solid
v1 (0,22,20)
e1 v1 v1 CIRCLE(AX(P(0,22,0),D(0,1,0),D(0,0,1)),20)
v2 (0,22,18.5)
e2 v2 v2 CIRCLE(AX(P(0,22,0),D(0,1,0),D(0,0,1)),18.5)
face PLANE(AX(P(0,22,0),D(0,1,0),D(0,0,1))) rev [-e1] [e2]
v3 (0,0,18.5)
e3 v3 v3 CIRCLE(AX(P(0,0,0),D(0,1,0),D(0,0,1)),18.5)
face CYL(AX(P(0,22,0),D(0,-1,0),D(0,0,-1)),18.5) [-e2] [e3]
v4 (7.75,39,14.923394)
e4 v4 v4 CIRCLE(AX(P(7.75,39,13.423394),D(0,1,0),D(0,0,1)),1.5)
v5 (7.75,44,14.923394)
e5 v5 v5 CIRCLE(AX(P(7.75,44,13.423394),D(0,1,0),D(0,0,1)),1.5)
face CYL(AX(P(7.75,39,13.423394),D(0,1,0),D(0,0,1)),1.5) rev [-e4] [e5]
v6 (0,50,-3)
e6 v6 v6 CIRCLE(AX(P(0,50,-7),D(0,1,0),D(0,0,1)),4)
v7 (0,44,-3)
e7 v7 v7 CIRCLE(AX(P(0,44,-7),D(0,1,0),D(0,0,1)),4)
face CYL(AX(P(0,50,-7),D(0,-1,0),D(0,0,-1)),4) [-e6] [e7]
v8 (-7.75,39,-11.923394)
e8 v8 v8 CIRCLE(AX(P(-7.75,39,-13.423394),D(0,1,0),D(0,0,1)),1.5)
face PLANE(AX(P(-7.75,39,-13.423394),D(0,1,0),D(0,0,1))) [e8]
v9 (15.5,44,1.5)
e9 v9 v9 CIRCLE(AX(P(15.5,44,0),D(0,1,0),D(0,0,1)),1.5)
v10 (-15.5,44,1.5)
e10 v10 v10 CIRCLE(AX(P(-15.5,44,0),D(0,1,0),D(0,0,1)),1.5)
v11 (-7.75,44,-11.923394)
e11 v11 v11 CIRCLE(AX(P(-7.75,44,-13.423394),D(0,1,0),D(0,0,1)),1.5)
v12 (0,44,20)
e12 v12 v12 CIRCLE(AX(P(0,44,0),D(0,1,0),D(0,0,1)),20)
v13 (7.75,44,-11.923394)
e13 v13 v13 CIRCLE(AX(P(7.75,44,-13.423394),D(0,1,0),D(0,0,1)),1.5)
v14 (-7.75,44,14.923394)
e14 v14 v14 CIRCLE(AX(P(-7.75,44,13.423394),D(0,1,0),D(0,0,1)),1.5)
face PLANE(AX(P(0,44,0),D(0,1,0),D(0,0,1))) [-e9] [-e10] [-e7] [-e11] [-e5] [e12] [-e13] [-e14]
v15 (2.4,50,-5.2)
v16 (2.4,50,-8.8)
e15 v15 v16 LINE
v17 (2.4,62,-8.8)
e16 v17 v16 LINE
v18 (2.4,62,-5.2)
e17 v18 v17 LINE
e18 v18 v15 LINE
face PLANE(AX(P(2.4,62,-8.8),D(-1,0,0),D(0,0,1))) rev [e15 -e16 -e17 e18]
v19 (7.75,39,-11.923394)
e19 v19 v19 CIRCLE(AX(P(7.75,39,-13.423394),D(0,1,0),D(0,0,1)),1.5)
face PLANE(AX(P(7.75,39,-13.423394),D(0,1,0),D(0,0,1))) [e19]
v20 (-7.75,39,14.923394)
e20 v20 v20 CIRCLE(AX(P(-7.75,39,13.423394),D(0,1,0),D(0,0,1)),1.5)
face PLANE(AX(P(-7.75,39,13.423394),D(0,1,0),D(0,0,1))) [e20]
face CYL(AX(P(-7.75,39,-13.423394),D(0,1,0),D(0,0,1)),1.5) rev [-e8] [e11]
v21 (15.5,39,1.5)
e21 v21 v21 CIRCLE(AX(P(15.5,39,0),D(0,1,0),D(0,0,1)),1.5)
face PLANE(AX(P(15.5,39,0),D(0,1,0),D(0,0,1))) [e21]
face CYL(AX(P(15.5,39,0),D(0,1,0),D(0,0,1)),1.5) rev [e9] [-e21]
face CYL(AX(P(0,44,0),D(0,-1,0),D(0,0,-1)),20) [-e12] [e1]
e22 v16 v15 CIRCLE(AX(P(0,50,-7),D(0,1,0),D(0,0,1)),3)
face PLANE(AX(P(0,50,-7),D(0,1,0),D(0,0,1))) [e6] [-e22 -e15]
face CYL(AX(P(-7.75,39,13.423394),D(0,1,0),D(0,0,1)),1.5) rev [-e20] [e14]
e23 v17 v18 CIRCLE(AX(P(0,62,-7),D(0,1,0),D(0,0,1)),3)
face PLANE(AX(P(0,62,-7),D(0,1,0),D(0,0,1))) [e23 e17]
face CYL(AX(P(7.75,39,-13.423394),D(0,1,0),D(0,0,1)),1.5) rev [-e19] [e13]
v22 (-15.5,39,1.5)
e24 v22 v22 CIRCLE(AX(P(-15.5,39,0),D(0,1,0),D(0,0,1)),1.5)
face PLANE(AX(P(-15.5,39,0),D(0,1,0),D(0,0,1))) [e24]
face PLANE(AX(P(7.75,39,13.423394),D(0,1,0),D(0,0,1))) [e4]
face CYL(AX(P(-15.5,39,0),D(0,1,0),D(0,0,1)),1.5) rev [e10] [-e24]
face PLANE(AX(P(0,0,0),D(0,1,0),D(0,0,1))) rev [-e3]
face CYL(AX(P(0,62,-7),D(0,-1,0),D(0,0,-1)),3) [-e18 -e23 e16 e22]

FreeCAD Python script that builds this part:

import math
import FreeCAD as App
import Part
import Sketcher

doc = App.newDocument("Part")
body = doc.addObject("PartDesign::Body", "Body")

# Sketch on XZ plane
sketch1 = body.newObject("Sketcher::SketchObject", "Sketch")
sketch1.AttachmentSupport = (doc.getObject("XZ_Plane"), [""])
sketch1.MapMode = "FlatFace"
sketch1.addGeometry(Part.Circle(App.Vector(0, 0, 0), App.Vector(0, 0, 1), 18.5), False)
sketch1.addConstraint(Sketcher.Constraint("Coincident", 0, 3, -1, 1))
sketch1.addConstraint(Sketcher.Constraint("Diameter", 0, 37.0))
pad1 = body.newObject("PartDesign::Pad", "Pad")
pad1.Profile = sketch1
pad1.Length = 22
pad1.Reversed = True

# Sketch on XZ plane
sketch2 = body.newObject("Sketcher::SketchObject", "Sketch001")
sketch2.AttachmentSupport = (doc.getObject("XZ_Plane"), [""])
sketch2.MapMode = "FlatFace"
sketch2.AttachmentOffset = App.Placement(App.Vector(0, 0, -22), App.Rotation())
sketch2.addGeometry(Part.Circle(App.Vector(0, 0, 0), App.Vector(0, 0, 1), 20), False)
sketch2.addConstraint(Sketcher.Constraint("Coincident", 0, 3, -1, 1))
sketch2.addConstraint(Sketcher.Constraint("Diameter", 0, 40.0))
pad2 = body.newObject("PartDesign::Pad", "Pad001")
pad2.Profile = sketch2
pad2.Length = 22
pad2.Reversed = True

# Sketch on XZ plane
sketch3 = body.newObject("Sketcher::SketchObject", "Sketch002")
sketch3.AttachmentSupport = (doc.getObject("XZ_Plane"), [""])
sketch3.MapMode = "FlatFace"
sketch3.AttachmentOffset = App.Placement(App.Vector(0, 0, -44), App.Rotation())
sketch3.addGeometry(Part.Circle(App.Vector(-7.75, -13.423394, 0), App.Vector(0, 0, 1), 1.5), False)
sketch3.addGeometry(Part.Circle(App.Vector(-15.5, 0, 0), App.Vector(0, 0, 1), 1.5), False)
sketch3.addGeometry(Part.Circle(App.Vector(-7.75, 13.423394, 0), App.Vector(0, 0, 1), 1.5), False)
sketch3.addGeometry(Part.Circle(App.Vector(7.75, 13.423394, 0), App.Vector(0, 0, 1), 1.5), False)
sketch3.addGeometry(Part.Circle(App.Vector(15.5, 0, 0), App.Vector(0, 0, 1), 1.5), False)
sketch3.addGeometry(Part.Circle(App.Vector(7.75, -13.423394, 0), App.Vector(0, 0, 1), 1.5), False)
sketch3.addConstraint(Sketcher.Constraint("Equal", 0, 1))
sketch3.addConstraint(Sketcher.Constraint("Equal", 1, 2))
sketch3.addConstraint(Sketcher.Constraint("Equal", 2, 3))
sketch3.addConstraint(Sketcher.Constraint("Equal", 3, 4))
sketch3.addConstraint(Sketcher.Constraint("Equal", 4, 5))
sketch3.addConstraint(Sketcher.Constraint("Symmetric", 0, 3, 3, 3, -1, 1))
sketch3.addConstraint(Sketcher.Constraint("Symmetric", 1, 3, 4, 3, -1, 1))
sketch3.addConstraint(Sketcher.Constraint("Symmetric", 2, 3, 5, 3, -1, 1))
sketch3.addConstraint(Sketcher.Constraint("Symmetric", 2, 3, 3, 3, -2))
sketch3.addConstraint(Sketcher.Constraint("PointOnObject", 1, 3, -1))
sketch3.addConstraint(Sketcher.Constraint("Diameter", 0, 3.0))
sketch3.addConstraint(Sketcher.Constraint("DistanceX", 1, 3, 4, 3, 31.0))
sketch3.addConstraint(Sketcher.Constraint("DistanceX", 2, 3, 3, 3, 15.5))
sketch3.addConstraint(Sketcher.Constraint("DistanceY", 0, 3, -1, 1, 13.423394))
pocket1 = body.newObject("PartDesign::Pocket", "Pocket")
pocket1.Profile = sketch3
pocket1.Length = 5
pocket1.Reversed = True

# Sketch on XZ plane
sketch4 = body.newObject("Sketcher::SketchObject", "Sketch003")
sketch4.AttachmentSupport = (doc.getObject("XZ_Plane"), [""])
sketch4.MapMode = "FlatFace"
sketch4.AttachmentOffset = App.Placement(App.Vector(0, 0, -44), App.Rotation())
sketch4.addGeometry(Part.Circle(App.Vector(0, -7, 0), App.Vector(0, 0, 1), 4), False)
sketch4.addConstraint(Sketcher.Constraint("PointOnObject", 0, 3, -2))
sketch4.addConstraint(Sketcher.Constraint("Diameter", 0, 8.0))
sketch4.addConstraint(Sketcher.Constraint("DistanceY", 0, 3, -1, 1, 7.0))
pad3 = body.newObject("PartDesign::Pad", "Pad002")
pad3.Profile = sketch4
pad3.Length = 6
pad3.Reversed = True

# Sketch on XZ plane
sketch5 = body.newObject("Sketcher::SketchObject", "Sketch004")
sketch5.AttachmentSupport = (doc.getObject("XZ_Plane"), [""])
sketch5.MapMode = "FlatFace"
sketch5.AttachmentOffset = App.Placement(App.Vector(0, 0, -50), App.Rotation())
sketch5.addGeometry(Part.LineSegment(App.Vector(2.4, -5.2, 0), App.Vector(2.4, -8.8, 0)), False)
sketch5.addGeometry(Part.ArcOfCircle(Part.Circle(App.Vector(0, -7, 0), App.Vector(0, 0, 1), 3), math.radians(36.869898), math.radians(323.130102)), False)
sketch5.addConstraint(Sketcher.Constraint("Coincident", 0, 1, 1, 1))
sketch5.addConstraint(Sketcher.Constraint("Coincident", 1, 2, 0, 2))
sketch5.addConstraint(Sketcher.Constraint("Vertical", 0))
sketch5.addConstraint(Sketcher.Constraint("PointOnObject", 1, 3, -2))
sketch5.addConstraint(Sketcher.Constraint("Radius", 1, 3.0))
sketch5.addConstraint(Sketcher.Constraint("DistanceY", 0, 2, 0, 1, 3.6))
sketch5.addConstraint(Sketcher.Constraint("DistanceY", 1, 3, -1, 1, 7.0))
pad4 = body.newObject("PartDesign::Pad", "Pad003")
pad4.Profile = sketch5
pad4.Length = 12
pad4.Reversed = True

doc.recompute()
